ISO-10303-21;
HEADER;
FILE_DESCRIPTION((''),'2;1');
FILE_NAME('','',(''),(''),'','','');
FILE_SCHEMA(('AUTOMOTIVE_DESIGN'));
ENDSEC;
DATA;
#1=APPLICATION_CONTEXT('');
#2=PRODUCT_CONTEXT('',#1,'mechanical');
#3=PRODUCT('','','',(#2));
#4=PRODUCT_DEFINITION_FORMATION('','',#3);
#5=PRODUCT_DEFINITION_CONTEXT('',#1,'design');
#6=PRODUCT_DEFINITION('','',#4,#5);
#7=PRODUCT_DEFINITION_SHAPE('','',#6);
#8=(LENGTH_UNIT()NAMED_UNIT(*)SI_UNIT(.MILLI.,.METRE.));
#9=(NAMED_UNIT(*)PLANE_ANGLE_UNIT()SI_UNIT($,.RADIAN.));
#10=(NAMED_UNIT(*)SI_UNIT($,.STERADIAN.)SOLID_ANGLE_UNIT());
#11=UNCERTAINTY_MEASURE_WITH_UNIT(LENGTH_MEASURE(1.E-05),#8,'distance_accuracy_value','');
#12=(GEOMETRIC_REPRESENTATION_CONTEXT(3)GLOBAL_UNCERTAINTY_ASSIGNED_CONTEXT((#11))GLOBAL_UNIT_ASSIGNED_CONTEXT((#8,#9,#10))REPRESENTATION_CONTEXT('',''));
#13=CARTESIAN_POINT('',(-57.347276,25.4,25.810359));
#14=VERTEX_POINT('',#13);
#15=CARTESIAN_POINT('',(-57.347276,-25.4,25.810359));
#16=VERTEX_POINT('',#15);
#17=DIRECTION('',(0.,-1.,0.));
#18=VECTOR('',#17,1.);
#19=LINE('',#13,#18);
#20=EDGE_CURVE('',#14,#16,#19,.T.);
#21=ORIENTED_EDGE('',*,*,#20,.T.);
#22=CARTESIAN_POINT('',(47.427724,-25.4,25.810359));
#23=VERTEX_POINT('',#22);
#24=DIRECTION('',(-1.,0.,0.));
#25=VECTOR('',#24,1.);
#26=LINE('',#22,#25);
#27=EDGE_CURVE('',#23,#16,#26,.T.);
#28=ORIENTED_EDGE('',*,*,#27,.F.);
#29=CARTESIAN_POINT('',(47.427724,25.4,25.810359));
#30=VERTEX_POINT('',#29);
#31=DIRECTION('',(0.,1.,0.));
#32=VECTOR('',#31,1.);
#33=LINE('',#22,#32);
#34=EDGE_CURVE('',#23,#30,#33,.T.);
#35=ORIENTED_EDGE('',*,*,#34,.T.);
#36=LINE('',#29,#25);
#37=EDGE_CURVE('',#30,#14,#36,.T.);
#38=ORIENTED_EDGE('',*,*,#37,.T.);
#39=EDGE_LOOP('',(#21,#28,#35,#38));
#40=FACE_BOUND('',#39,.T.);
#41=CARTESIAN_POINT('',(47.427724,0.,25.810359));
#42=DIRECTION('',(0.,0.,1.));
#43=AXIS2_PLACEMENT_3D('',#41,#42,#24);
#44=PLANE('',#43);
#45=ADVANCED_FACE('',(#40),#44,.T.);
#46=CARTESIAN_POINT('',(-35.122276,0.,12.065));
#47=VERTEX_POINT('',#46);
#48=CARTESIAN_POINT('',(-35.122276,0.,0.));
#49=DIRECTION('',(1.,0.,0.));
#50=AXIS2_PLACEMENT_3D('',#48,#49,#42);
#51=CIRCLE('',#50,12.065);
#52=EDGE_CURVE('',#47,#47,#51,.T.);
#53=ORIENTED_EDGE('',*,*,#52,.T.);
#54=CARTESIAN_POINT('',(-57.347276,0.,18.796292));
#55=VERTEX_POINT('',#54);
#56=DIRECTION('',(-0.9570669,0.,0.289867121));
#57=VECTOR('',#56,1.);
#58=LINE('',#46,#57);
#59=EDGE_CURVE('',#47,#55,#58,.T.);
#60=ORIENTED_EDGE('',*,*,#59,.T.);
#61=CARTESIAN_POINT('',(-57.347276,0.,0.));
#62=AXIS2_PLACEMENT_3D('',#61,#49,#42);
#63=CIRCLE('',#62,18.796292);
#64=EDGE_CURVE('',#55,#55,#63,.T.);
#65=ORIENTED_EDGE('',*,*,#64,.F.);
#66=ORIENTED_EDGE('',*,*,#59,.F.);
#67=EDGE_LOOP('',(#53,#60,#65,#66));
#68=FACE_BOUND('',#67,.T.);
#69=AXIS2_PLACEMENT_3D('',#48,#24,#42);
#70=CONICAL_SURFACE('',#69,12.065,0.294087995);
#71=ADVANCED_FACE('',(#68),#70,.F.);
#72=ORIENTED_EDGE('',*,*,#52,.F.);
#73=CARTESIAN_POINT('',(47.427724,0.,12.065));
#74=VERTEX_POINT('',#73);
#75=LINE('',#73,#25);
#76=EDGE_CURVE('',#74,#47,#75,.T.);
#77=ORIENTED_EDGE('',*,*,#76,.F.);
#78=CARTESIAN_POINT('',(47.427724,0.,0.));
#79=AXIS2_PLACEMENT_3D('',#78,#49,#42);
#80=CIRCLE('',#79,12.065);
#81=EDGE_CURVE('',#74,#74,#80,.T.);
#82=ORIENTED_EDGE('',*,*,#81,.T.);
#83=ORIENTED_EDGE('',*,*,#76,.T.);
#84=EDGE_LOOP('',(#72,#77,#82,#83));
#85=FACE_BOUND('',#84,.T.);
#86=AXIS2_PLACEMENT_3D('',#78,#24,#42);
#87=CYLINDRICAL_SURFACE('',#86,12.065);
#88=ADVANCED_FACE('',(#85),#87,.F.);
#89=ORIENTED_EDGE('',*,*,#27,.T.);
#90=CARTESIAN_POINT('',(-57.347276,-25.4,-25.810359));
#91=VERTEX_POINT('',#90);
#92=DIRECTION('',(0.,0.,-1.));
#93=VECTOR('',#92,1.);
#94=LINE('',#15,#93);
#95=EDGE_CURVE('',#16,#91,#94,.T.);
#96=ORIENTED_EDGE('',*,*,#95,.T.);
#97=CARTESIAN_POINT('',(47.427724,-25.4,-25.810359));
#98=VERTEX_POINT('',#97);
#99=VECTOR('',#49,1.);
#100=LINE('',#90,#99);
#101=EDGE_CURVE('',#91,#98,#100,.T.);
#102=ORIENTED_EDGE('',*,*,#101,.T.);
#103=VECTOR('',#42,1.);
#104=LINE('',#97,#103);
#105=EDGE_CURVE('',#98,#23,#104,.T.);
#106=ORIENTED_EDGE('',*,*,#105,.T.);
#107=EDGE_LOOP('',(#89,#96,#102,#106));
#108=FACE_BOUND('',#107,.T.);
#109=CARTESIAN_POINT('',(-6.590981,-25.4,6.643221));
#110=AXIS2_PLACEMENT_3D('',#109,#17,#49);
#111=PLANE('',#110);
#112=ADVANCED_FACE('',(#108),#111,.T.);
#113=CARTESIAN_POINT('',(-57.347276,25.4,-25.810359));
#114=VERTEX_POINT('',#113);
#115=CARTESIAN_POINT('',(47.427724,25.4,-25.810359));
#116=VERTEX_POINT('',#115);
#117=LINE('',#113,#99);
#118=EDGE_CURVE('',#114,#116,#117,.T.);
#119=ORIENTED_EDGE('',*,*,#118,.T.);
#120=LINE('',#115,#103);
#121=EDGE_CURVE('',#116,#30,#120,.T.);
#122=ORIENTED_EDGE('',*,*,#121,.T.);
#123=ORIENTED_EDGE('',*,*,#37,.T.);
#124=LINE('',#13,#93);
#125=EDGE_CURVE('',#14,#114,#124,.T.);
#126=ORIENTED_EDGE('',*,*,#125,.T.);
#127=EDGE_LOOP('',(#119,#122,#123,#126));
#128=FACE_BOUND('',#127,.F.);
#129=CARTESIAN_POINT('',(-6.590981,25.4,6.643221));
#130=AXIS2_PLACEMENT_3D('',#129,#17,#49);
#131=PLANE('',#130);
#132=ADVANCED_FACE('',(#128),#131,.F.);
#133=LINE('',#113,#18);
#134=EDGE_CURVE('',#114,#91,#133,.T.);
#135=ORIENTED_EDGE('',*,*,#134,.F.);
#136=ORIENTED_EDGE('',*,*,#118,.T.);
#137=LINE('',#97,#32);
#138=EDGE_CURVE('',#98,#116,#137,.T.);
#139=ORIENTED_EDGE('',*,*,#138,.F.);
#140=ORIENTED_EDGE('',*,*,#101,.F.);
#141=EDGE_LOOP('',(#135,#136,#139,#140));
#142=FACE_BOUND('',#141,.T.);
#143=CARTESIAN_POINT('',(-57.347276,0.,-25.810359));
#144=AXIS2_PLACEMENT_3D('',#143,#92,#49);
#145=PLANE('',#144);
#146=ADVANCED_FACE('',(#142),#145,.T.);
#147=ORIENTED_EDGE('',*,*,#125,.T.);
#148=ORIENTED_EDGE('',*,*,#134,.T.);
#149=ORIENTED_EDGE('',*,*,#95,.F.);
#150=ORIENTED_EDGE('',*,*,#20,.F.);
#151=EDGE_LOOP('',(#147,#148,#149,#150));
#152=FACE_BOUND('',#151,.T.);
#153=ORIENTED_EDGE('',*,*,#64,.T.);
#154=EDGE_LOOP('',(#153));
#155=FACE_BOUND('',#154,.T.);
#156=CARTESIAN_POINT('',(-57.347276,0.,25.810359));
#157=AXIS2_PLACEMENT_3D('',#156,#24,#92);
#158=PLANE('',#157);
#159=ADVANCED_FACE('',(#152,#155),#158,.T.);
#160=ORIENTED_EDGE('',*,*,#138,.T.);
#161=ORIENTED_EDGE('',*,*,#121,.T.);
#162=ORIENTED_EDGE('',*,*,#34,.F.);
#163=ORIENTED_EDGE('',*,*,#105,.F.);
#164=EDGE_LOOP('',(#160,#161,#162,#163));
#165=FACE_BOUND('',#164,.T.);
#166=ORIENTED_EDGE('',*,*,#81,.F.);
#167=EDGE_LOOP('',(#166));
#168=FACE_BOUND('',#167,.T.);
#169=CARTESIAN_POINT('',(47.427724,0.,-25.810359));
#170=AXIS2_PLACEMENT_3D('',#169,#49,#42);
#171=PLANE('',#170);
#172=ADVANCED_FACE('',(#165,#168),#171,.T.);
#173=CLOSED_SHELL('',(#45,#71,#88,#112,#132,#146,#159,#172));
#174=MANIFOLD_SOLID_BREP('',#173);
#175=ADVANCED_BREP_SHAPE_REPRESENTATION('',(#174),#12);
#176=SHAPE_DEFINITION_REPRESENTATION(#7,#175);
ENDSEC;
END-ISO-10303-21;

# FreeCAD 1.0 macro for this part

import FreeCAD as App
import Part
import Sketcher
Q = App.Units.Quantity


def add_polygon(sketch, points):
    """Adds a closed chain of lines whose ends are joined by coincident constraints."""
    first, n = sketch.GeometryCount, len(points)
    for a, b in zip(points, points[1:] + points[:1]):
        sketch.addGeometry(Part.LineSegment(App.Vector(*a, 0), App.Vector(*b, 0)), False)
    for i in range(n):
        sketch.addConstraint(Sketcher.Constraint("Coincident", first + i, 2, first + (i + 1) % n, 1))

doc = App.newDocument("Part")
body = doc.addObject("PartDesign::Body", "Body")

sketch1 = doc.addObject("Sketcher::SketchObject", "Sketch")
body.addObject(sketch1)
sketch1.AttachmentSupport = (doc.XZ_Plane, [""])
sketch1.MapMode = "FlatFace"
add_polygon(sketch1, [(47, 26), (-57, 26), (-57, -26), (47, -26)])
sketch1.addConstraint([
    Sketcher.Constraint("Horizontal", 0),
    Sketcher.Constraint("Vertical", 1),
    Sketcher.Constraint("Horizontal", 2),
    Sketcher.Constraint("Vertical", 3),
    Sketcher.Constraint("DistanceX", 0, 2, 0, 1, Q("4.125 in")),
    Sketcher.Constraint("DistanceY", 1, 2, 1, 1, 51.620718),
    Sketcher.Constraint("DistanceY", -1, 1, 0, 2, 25.810359),
    Sketcher.Constraint("DistanceX", 0, 2, -1, 1, 57.347276),
])
pad1 = doc.addObject("PartDesign::Pad", "Pad")
body.addObject(pad1)
pad1.Profile = sketch1
pad1.Length = Q("2 in")
pad1.Midplane = True

sketch2 = doc.addObject("Sketcher::SketchObject", "Sketch001")
body.addObject(sketch2)
sketch2.AttachmentSupport = (doc.XZ_Plane, [""])
sketch2.MapMode = "FlatFace"
add_polygon(sketch2, [(-57, 0), (47, 0), (47, 12), (-35, 12), (-57, 19)])
sketch2.addConstraint([
    Sketcher.Constraint("Horizontal", 0),
    Sketcher.Constraint("Vertical", 1),
    Sketcher.Constraint("Horizontal", 2),
    Sketcher.Constraint("Vertical", 4),
    Sketcher.Constraint("PointOnObject", 0, 2, -1),
    Sketcher.Constraint("DistanceX", 2, 2, 2, 1, Q("3.25 in")),
    Sketcher.Constraint("DistanceX", 0, 1, 0, 2, Q("4.125 in")),
    Sketcher.Constraint("DistanceY", 1, 1, 1, 2, Q("0.475 in")),
    Sketcher.Constraint("Angle", 3, Q("163.149999 deg")),
    Sketcher.Constraint("DistanceX", -1, 1, 0, 2, 47.427724),
])
groove = doc.addObject("PartDesign::Groove", "Groove")
body.addObject(groove)
groove.Profile = sketch2
groove.ReferenceAxis = (sketch2, ["H_Axis"])
groove.Angle = 360

doc.recompute()
